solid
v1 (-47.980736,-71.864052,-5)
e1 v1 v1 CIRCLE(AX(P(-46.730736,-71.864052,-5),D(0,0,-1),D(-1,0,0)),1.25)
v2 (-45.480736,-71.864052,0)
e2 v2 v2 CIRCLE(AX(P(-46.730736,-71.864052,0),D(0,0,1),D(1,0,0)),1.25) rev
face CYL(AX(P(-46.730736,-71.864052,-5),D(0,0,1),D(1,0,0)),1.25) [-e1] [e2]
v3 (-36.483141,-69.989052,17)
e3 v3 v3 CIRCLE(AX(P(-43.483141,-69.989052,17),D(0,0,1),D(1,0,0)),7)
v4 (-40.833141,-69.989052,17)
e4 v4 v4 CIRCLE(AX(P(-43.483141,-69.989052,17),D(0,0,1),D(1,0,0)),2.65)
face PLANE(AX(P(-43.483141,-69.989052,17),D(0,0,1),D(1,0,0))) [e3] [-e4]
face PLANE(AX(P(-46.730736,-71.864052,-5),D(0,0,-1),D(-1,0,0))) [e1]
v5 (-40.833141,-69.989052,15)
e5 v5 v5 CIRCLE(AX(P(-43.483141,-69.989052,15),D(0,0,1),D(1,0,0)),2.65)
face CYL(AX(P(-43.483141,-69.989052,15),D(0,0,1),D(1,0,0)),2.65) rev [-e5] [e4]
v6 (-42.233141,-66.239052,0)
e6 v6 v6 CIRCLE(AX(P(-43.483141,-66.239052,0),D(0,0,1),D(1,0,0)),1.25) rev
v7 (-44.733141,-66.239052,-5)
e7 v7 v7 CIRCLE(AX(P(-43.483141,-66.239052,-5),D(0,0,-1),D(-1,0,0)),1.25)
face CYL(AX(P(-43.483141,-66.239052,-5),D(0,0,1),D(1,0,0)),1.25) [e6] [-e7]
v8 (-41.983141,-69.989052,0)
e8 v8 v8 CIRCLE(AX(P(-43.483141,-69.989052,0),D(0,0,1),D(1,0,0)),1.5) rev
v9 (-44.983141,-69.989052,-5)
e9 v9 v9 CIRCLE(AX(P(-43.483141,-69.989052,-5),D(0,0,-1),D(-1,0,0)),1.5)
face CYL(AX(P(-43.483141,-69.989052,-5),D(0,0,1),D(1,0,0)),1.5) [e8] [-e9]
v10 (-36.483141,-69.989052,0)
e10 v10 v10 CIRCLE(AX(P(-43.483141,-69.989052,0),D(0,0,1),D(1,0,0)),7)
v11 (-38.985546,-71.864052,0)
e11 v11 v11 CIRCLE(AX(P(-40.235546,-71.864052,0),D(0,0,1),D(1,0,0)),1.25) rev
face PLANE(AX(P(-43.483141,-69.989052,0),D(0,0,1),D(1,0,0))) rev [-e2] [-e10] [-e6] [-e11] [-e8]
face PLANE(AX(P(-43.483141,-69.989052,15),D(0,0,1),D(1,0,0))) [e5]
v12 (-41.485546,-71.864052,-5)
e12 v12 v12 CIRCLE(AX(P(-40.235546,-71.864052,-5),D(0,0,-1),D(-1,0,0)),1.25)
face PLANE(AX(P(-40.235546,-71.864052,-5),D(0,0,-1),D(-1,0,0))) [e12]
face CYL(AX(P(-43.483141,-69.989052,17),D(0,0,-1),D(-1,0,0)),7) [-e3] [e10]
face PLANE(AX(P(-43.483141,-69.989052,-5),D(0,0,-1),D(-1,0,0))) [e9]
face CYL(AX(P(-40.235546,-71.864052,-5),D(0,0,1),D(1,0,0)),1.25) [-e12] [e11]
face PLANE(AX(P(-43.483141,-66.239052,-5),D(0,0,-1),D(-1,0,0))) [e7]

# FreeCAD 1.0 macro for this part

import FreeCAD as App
import Part
import Sketcher

V = App.Vector
Q = App.Units.Quantity

doc = App.newDocument("Part")
body = doc.addObject("PartDesign::Body", "Body")

sketch1 = doc.addObject("Sketcher::SketchObject", "Sketch")
body.addObject(sketch1)
sketch1.AttachmentSupport = (doc.XY_Plane, [""])
sketch1.MapMode = "FlatFace"
sketch1.addGeometry([
    Part.Circle(V(-43.5, -70, 0), V(0, 0, 1), 7),
    Part.Circle(V(-46.7, -71.9, 0), V(0, 0, 1), 1.2),
    Part.Circle(V(-40.2, -71.9, 0), V(0, 0, 1), 1.2),
    Part.Circle(V(-43.5, -66.2, 0), V(0, 0, 1), 1.2),
], False)
sketch1.addConstraint([
    Sketcher.Constraint("Equal", 1, 2),
    Sketcher.Constraint("Equal", 2, 3),
    Sketcher.Constraint("Horizontal", 1, 3, 2, 3),
    Sketcher.Constraint("Vertical", 0, 3, 3, 3),
    Sketcher.Constraint("Diameter", 0, Q("14 mm")),
    Sketcher.Constraint("Diameter", 1, Q("2.5 mm")),
    Sketcher.Constraint("DistanceY", 0, 3, 3, 3, Q("3.75 mm")),
    Sketcher.Constraint("DistanceY", 1, 3, 0, 3, Q("1.875 mm")),
    Sketcher.Constraint("DistanceX", 0, 3, -1, 1, Q("43.483141 mm")),
    Sketcher.Constraint("DistanceX", 1, 3, 2, 3, Q("6.495191 mm")),
    Sketcher.Constraint("DistanceY", 0, 3, -1, 1, Q("69.989052 mm")),
    Sketcher.Constraint("DistanceX", 1, 3, -1, 1, Q("46.730736 mm")),
])
pad1 = doc.addObject("PartDesign::Pad", "Pad")
body.addObject(pad1)
pad1.Profile = sketch1
pad1.Length = 17

sketch2 = doc.addObject("Sketcher::SketchObject", "Sketch001")
body.addObject(sketch2)
sketch2.AttachmentSupport = (doc.XY_Plane, [""])
sketch2.MapMode = "FlatFace"
sketch2.AttachmentOffset = App.Placement(V(0, 0, 17), App.Rotation())
sketch2.addGeometry(Part.Circle(V(-43, -70, 0), V(0, 0, 1), 7), False)
sketch2.addConstraint([
    Sketcher.Constraint("Diameter", 0, Q("14 mm")),
    Sketcher.Constraint("DistanceX", 0, 3, -1, 1, Q("43.483141 mm")),
    Sketcher.Constraint("DistanceY", 0, 3, -1, 1, Q("69.989052 mm")),
])
pad2 = doc.addObject("PartDesign::Pad", "Pad001")
body.addObject(pad2)
pad2.Profile = sketch2
pad2.Length = 11
pad2.Reversed = True

sketch3 = doc.addObject("Sketcher::SketchObject", "Sketch002")
body.addObject(sketch3)
sketch3.AttachmentSupport = (doc.XY_Plane, [""])
sketch3.MapMode = "FlatFace"
sketch3.AttachmentOffset = App.Placement(V(0, 0, 17), App.Rotation())
sketch3.addGeometry(Part.Circle(V(-43.5, -70, 0), V(0, 0, 1), 2.6), False)
sketch3.addConstraint([
    Sketcher.Constraint("Diameter", 0, Q("5.3 mm")),
    Sketcher.Constraint("DistanceX", 0, 3, -1, 1, Q("43.483141 mm")),
    Sketcher.Constraint("DistanceY", 0, 3, -1, 1, Q("69.989052 mm")),
])
pocket1 = doc.addObject("PartDesign::Pocket", "Pocket")
body.addObject(pocket1)
pocket1.Profile = sketch3
pocket1.Length = 2

sketch4 = doc.addObject("Sketcher::SketchObject", "Sketch003")
body.addObject(sketch4)
sketch4.AttachmentSupport = (doc.XY_Plane, [""])
sketch4.MapMode = "FlatFace"
sketch4.addGeometry(Part.Circle(V(-43.5, -70, 0), V(0, 0, 1), 1.5), False)
sketch4.addConstraint([
    Sketcher.Constraint("Diameter", 0, Q("3 mm")),
    Sketcher.Constraint("DistanceX", 0, 3, -1, 1, Q("43.483141 mm")),
    Sketcher.Constraint("DistanceY", 0, 3, -1, 1, Q("69.989052 mm")),
])
pad3 = doc.addObject("PartDesign::Pad", "Pad002")
body.addObject(pad3)
pad3.Profile = sketch4
pad3.Length = 5
pad3.Reversed = True

sketch5 = doc.addObject("Sketcher::SketchObject", "Sketch004")
body.addObject(sketch5)
sketch5.AttachmentSupport = (doc.XY_Plane, [""])
sketch5.MapMode = "FlatFace"
sketch5.addGeometry([
    Part.Circle(V(-43.5, -66.2, 0), V(0, 0, 1), 1.2),
    Part.Circle(V(-46.7, -71.9, 0), V(0, 0, 1), 1.2),
    Part.Circle(V(-40.2, -71.9, 0), V(0, 0, 1), 1.2),
], False)
sketch5.addConstraint([
    Sketcher.Constraint("Equal", 0, 1),
    Sketcher.Constraint("Equal", 1, 2),
    Sketcher.Constraint("Horizontal", 1, 3, 2, 3),
    Sketcher.Constraint("Diameter", 0, Q("2.5 mm")),
    Sketcher.Constraint("DistanceY", 1, 3, 0, 3, Q("5.625 mm")),
    Sketcher.Constraint("DistanceX", 0, 3, -1, 1, Q("43.483141 mm")),
    Sketcher.Constraint("DistanceX", 1, 3, 2, 3, Q("6.495191 mm")),
    Sketcher.Constraint("DistanceY", 0, 3, -1, 1, Q("66.239052 mm")),
    Sketcher.Constraint("DistanceX", 1, 3, -1, 1, Q("46.730736 mm")),
])
pad4 = doc.addObject("PartDesign::Pad", "Pad003")
body.addObject(pad4)
pad4.Profile = sketch5
pad4.Length = 10
pad4.Midplane = True

sketch6 = doc.addObject("Sketcher::SketchObject", "Sketch005")
body.addObject(sketch6)
sketch6.AttachmentSupport = (doc.XY_Plane, [""])
sketch6.MapMode = "FlatFace"
sketch6.addGeometry(Part.Circle(V(-43, -70, 0), V(0, 0, 1), 7), False)
sketch6.addConstraint([
    Sketcher.Constraint("Diameter", 0, Q("14 mm")),
    Sketcher.Constraint("DistanceX", 0, 3, -1, 1, Q("43.483141 mm")),
    Sketcher.Constraint("DistanceY", 0, 3, -1, 1, Q("69.989052 mm")),
])
pad5 = doc.addObject("PartDesign::Pad", "Pad004")
body.addObject(pad5)
pad5.Profile = sketch6
pad5.Length = 15

doc.recompute()
